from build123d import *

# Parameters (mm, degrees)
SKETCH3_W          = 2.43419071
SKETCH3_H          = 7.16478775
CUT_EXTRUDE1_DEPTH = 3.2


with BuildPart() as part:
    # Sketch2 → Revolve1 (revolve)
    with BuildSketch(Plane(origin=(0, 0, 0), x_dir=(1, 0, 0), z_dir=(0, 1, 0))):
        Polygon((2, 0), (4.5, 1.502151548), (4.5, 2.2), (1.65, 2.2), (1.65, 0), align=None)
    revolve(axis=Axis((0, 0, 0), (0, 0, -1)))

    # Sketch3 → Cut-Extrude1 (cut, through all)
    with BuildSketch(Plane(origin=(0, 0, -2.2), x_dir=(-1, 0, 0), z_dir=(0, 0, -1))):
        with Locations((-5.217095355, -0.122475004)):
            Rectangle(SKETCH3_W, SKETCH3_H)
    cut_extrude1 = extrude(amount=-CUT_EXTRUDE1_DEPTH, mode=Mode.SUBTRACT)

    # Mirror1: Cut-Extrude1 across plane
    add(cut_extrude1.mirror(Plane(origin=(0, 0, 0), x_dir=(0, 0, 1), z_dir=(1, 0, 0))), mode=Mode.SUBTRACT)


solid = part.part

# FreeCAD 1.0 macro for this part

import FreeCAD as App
import Part
import Sketcher
Q = App.Units.Quantity


def add_polygon(sketch, points):
    """Adds a closed chain of lines whose ends are joined by coincident constraints."""
    first, n = sketch.GeometryCount, len(points)
    for a, b in zip(points, points[1:] + points[:1]):
        sketch.addGeometry(Part.LineSegment(App.Vector(*a, 0), App.Vector(*b, 0)), False)
    for i in range(n):
        sketch.addConstraint(Sketcher.Constraint("Coincident", first + i, 2, first + (i + 1) % n, 1))

doc = App.newDocument("Part")
body = doc.addObject("PartDesign::Body", "Body")

# Sketch on XZ plane
sketch1 = body.newObject("Sketcher::SketchObject", "Sketch")
sketch1.AttachmentSupport = (doc.getObject("XZ_Plane"), [""])
sketch1.MapMode = "FlatFace"
add_polygon(sketch1, [(2, 0), (4.5, -1.5), (4.5, -2.2), (1.65, -2.2), (1.65, 0)])  # lines 0-4
sketch1.addConstraint(Sketcher.Constraint("Vertical", 1))
sketch1.addConstraint(Sketcher.Constraint("Horizontal", 2))
sketch1.addConstraint(Sketcher.Constraint("Vertical", 3))
sketch1.addConstraint(Sketcher.Constraint("Horizontal", 4))
sketch1.addConstraint(Sketcher.Constraint("PointOnObject", 3, 2, -1))
sketch1.addConstraint(Sketcher.Constraint("Angle", 0, Q("-31 deg")))
sketch1.addConstraint(Sketcher.Constraint("DistanceY", 3, 1, 3, 2, 2.2))
sketch1.addConstraint(Sketcher.Constraint("DistanceX", -1, 1, 4, 2, 2.0))
sketch1.addConstraint(Sketcher.Constraint("DistanceX", 2, 2, 2, 1, 2.85))
sketch1.addConstraint(Sketcher.Constraint("DistanceX", 4, 1, 4, 2, 0.35))
revolution = body.newObject("PartDesign::Revolution", "Revolution")
revolution.Profile = sketch1
revolution.ReferenceAxis = (sketch1, ["V_Axis"])
revolution.Angle = 360

# Sketch on XY plane
sketch2 = body.newObject("Sketcher::SketchObject", "Sketch001")
sketch2.AttachmentSupport = (doc.getObject("XY_Plane"), [""])
sketch2.MapMode = "FlatFace"
sketch2.AttachmentOffset = App.Placement(App.Vector(0, 0, -2.2), App.Rotation())
add_polygon(sketch2, [(6.4, 3.5), (6.4, -3.7), (4, -3.7), (4, 3.5)])  # lines 0-3
sketch2.addConstraint(Sketcher.Constraint("Vertical", 0))
sketch2.addConstraint(Sketcher.Constraint("Horizontal", 1))
sketch2.addConstraint(Sketcher.Constraint("Vertical", 2))
sketch2.addConstraint(Sketcher.Constraint("Horizontal", 3))
sketch2.addConstraint(Sketcher.Constraint("DistanceX", -1, 1, 1, 2, 4.0))
sketch2.addConstraint(Sketcher.Constraint("DistanceX", 1, 2, 1, 1, 2.434191))
sketch2.addConstraint(Sketcher.Constraint("DistanceY", 0, 2, 0, 1, 7.164788))
sketch2.addConstraint(Sketcher.Constraint("DistanceY", 0, 2, -1, 1, 3.704869))
pocket1 = body.newObject("PartDesign::Pocket", "Pocket")
pocket1.Profile = sketch2
pocket1.Type = "ThroughAll"
pocket1.Reversed = True
doc.recompute()

mirrored = body.newObject("PartDesign::Mirrored", "Mirrored")
mirrored.Originals = [pocket1]
mirrored.MirrorPlane = (doc.getObject("YZ_Plane"), [""])
body.Tip = mirrored

doc.recompute()
